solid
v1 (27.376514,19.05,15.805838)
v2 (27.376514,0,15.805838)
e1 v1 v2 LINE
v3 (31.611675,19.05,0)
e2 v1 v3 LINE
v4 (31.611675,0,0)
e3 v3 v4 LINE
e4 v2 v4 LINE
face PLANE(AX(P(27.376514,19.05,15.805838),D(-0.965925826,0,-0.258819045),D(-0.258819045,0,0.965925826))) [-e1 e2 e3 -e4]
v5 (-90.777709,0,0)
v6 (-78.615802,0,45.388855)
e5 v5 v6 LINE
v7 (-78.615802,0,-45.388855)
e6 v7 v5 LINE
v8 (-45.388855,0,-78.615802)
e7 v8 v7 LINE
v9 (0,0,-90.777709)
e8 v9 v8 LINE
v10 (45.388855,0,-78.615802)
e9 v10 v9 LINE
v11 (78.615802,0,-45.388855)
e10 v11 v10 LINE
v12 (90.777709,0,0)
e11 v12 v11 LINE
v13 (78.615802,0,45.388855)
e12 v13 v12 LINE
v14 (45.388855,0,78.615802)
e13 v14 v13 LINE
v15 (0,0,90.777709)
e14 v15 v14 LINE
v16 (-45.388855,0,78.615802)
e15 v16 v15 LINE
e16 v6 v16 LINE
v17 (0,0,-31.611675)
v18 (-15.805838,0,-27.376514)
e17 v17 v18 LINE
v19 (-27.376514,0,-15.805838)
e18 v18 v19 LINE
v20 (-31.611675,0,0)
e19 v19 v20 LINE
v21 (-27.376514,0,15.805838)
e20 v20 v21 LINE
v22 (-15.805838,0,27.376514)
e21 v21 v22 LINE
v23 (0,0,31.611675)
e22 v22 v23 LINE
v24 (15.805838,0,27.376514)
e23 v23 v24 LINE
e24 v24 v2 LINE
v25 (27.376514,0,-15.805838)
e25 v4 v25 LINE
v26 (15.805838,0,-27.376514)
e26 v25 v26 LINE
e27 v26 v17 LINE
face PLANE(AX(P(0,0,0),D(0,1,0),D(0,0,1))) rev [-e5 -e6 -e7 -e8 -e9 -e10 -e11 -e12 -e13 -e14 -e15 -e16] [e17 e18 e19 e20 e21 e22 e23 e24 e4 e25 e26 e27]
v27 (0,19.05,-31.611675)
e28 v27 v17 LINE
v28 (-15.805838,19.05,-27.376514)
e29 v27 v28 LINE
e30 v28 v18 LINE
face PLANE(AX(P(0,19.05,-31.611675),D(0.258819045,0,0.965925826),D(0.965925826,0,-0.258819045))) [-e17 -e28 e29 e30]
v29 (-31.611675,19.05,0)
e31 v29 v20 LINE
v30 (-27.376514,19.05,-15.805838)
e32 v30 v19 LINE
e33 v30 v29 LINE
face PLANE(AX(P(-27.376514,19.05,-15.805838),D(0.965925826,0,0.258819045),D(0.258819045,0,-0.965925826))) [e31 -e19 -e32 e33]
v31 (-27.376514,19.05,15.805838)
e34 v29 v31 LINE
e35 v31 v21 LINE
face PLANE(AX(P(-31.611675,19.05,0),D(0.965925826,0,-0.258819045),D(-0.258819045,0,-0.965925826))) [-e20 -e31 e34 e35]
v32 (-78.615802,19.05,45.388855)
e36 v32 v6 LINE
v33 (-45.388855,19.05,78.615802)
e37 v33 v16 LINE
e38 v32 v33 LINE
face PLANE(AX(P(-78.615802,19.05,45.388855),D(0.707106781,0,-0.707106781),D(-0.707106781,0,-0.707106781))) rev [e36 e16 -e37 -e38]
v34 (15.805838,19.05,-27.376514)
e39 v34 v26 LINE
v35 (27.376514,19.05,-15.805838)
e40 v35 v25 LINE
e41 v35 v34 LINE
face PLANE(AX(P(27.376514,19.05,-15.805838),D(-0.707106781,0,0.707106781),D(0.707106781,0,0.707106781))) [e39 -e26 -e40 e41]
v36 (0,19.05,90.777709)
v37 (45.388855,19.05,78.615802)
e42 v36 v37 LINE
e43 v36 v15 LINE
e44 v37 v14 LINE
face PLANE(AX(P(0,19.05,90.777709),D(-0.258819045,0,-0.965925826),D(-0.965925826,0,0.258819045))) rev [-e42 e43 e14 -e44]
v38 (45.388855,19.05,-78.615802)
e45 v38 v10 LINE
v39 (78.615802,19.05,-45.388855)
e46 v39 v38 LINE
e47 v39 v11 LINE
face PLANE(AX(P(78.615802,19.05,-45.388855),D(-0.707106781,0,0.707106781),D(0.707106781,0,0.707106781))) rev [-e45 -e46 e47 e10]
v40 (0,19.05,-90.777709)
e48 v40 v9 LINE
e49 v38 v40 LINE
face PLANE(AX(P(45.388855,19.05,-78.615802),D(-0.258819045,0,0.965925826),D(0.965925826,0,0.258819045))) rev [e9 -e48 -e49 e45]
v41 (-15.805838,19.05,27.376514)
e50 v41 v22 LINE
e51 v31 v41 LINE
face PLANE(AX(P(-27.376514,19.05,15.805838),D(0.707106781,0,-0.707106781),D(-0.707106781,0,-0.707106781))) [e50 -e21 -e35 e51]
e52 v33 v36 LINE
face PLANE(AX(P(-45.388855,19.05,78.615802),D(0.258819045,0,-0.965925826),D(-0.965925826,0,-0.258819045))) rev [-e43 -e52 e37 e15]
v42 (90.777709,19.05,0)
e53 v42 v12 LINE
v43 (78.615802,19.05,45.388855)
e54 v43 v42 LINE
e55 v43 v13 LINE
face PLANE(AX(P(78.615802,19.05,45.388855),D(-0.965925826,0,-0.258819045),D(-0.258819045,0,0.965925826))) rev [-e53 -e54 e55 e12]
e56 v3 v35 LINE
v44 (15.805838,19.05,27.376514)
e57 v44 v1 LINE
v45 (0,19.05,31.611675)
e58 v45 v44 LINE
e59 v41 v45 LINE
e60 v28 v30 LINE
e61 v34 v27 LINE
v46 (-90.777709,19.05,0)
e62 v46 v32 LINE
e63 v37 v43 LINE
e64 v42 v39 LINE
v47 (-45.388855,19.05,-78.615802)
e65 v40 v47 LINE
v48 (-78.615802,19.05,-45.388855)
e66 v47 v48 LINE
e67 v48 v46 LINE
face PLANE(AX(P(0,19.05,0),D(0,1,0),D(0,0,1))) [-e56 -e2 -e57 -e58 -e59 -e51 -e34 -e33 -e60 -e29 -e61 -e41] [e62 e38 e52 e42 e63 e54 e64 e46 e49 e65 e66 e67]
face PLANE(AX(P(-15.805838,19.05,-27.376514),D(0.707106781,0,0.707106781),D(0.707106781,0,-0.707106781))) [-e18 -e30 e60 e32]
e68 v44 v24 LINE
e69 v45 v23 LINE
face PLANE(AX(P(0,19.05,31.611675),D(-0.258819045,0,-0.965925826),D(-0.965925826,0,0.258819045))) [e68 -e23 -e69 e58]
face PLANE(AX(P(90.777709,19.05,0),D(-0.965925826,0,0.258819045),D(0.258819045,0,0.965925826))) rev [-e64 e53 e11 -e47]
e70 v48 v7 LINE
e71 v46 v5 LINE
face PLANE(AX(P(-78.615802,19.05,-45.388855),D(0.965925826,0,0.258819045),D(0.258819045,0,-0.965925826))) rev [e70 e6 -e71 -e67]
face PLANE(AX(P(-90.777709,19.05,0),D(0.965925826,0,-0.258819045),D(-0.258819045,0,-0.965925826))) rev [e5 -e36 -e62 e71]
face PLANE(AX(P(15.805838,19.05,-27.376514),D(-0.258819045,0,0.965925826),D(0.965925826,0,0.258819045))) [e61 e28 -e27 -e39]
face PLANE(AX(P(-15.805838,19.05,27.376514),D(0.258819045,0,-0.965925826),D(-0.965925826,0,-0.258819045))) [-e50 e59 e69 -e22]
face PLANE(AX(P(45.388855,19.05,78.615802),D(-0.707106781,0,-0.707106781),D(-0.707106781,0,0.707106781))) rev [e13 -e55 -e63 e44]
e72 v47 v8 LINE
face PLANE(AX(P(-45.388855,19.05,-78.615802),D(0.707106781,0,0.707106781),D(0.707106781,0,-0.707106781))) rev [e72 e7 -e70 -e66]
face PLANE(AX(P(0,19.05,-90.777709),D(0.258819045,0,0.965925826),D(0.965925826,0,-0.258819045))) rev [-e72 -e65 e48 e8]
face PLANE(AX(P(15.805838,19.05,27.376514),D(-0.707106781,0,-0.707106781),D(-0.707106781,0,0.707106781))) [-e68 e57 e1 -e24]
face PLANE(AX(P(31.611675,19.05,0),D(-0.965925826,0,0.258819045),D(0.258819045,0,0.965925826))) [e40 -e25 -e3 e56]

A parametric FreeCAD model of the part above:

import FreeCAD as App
import Part
import Sketcher
from FreeCAD import Vector
Q = App.Units.Quantity

doc = App.newDocument("Part")
body = doc.addObject("PartDesign::Body", "Body")

sketch1 = body.newObject("Sketcher::SketchObject", "Sketch")
sketch1.AttachmentSupport = (doc.getObject("XZ_Plane"), [""])
sketch1.MapMode = "FlatFace"
sketch1.addGeometry([
    Part.LineSegment(Vector(91, 0, 0), Vector(79, -45, 0)),
    Part.LineSegment(Vector(79, -45, 0), Vector(45, -79, 0)),
    Part.LineSegment(Vector(45, -79, 0), Vector(0, -91, 0)),
    Part.LineSegment(Vector(0, -91, 0), Vector(-45, -79, 0)),
    Part.LineSegment(Vector(-45, -79, 0), Vector(-79, -45, 0)),
    Part.LineSegment(Vector(-79, -45, 0), Vector(-91, 0, 0)),
    Part.LineSegment(Vector(-91, 0, 0), Vector(-79, 45, 0)),
    Part.LineSegment(Vector(-79, 45, 0), Vector(-45, 79, 0)),
    Part.LineSegment(Vector(-45, 79, 0), Vector(0, 91, 0)),
    Part.LineSegment(Vector(0, 91, 0), Vector(45, 79, 0)),
    Part.LineSegment(Vector(45, 79, 0), Vector(79, 45, 0)),
    Part.LineSegment(Vector(79, 45, 0), Vector(91, 0, 0)),
    Part.LineSegment(Vector(27, -16, 0), Vector(32, 0, 0)),
    Part.LineSegment(Vector(32, 0, 0), Vector(27, 16, 0)),
    Part.LineSegment(Vector(27, 16, 0), Vector(16, 27, 0)),
    Part.LineSegment(Vector(16, 27, 0), Vector(0, 32, 0)),
    Part.LineSegment(Vector(0, 32, 0), Vector(-16, 27, 0)),
    Part.LineSegment(Vector(-16, 27, 0), Vector(-27, 16, 0)),
    Part.LineSegment(Vector(-27, 16, 0), Vector(-32, 0, 0)),
    Part.LineSegment(Vector(-32, 0, 0), Vector(-27, -16, 0)),
    Part.LineSegment(Vector(-27, -16, 0), Vector(-16, -27, 0)),
    Part.LineSegment(Vector(-16, -27, 0), Vector(0, -32, 0)),
    Part.LineSegment(Vector(0, -32, 0), Vector(16, -27, 0)),
    Part.LineSegment(Vector(16, -27, 0), Vector(27, -16, 0)),
], False)
sketch1.addConstraint([
    Sketcher.Constraint("Coincident", 0, 2, 1, 1),
    Sketcher.Constraint("Coincident", 1, 2, 2, 1),
    Sketcher.Constraint("Coincident", 2, 2, 3, 1),
    Sketcher.Constraint("Coincident", 3, 2, 4, 1),
    Sketcher.Constraint("Coincident", 4, 2, 5, 1),
    Sketcher.Constraint("Coincident", 5, 2, 6, 1),
    Sketcher.Constraint("Coincident", 6, 2, 7, 1),
    Sketcher.Constraint("Coincident", 7, 2, 8, 1),
    Sketcher.Constraint("Coincident", 8, 2, 9, 1),
    Sketcher.Constraint("Coincident", 9, 2, 10, 1),
    Sketcher.Constraint("Coincident", 10, 2, 11, 1),
    Sketcher.Constraint("Coincident", 11, 2, 0, 1),
    Sketcher.Constraint("Coincident", 12, 2, 13, 1),
    Sketcher.Constraint("Coincident", 13, 2, 14, 1),
    Sketcher.Constraint("Coincident", 14, 2, 15, 1),
    Sketcher.Constraint("Coincident", 15, 2, 16, 1),
    Sketcher.Constraint("Coincident", 16, 2, 17, 1),
    Sketcher.Constraint("Coincident", 17, 2, 18, 1),
    Sketcher.Constraint("Coincident", 18, 2, 19, 1),
    Sketcher.Constraint("Coincident", 19, 2, 20, 1),
    Sketcher.Constraint("Coincident", 20, 2, 21, 1),
    Sketcher.Constraint("Coincident", 21, 2, 22, 1),
    Sketcher.Constraint("Coincident", 22, 2, 23, 1),
    Sketcher.Constraint("Coincident", 23, 2, 12, 1),
    Sketcher.Constraint("Symmetric", 0, 2, 6, 2, -1, 1),
    Sketcher.Constraint("Symmetric", 1, 2, 7, 2, -1, 1),
    Sketcher.Constraint("Symmetric", 2, 2, 8, 2, -1, 1),
    Sketcher.Constraint("Symmetric", 3, 2, 9, 2, -1, 1),
    Sketcher.Constraint("Symmetric", 4, 2, 10, 2, -1, 1),
    Sketcher.Constraint("Symmetric", 5, 2, 11, 2, -1, 1),
    Sketcher.Constraint("Symmetric", 12, 2, 18, 2, -1, 1),
    Sketcher.Constraint("Symmetric", 13, 2, 19, 2, -1, 1),
    Sketcher.Constraint("Symmetric", 14, 2, 20, 2, -1, 1),
    Sketcher.Constraint("Symmetric", 15, 2, 21, 2, -1, 1),
    Sketcher.Constraint("Symmetric", 16, 2, 22, 2, -1, 1),
    Sketcher.Constraint("Symmetric", 17, 2, 23, 2, -1, 1),
    Sketcher.Constraint("Symmetric", 1, 2, 3, 2, -2),
    Sketcher.Constraint("Symmetric", 0, 2, 4, 2, -2),
    Sketcher.Constraint("Symmetric", 14, 2, 16, 2, -2),
    Sketcher.Constraint("Symmetric", 13, 2, 17, 2, -2),
    Sketcher.Constraint("PointOnObject", 2, 2, -2),
    Sketcher.Constraint("PointOnObject", 5, 2, -1),
    Sketcher.Constraint("PointOnObject", 12, 2, -1),
    Sketcher.Constraint("PointOnObject", 15, 2, -2),
    Sketcher.Constraint("Perpendicular", 0, 3),
    Sketcher.Constraint("Perpendicular", 1, 4),
    Sketcher.Constraint("Perpendicular", 9, 12),
    Sketcher.Constraint("Parallel", 10, 14),
    Sketcher.Constraint("Perpendicular", 12, 15),
    Sketcher.Constraint("Equal", 0, 1),
    Sketcher.Constraint("Equal", 1, 2),
    Sketcher.Constraint("Equal", 13, 14),
    Sketcher.Constraint("Equal", 14, 15),
    Sketcher.Constraint("Angle", 0, Q("-105 deg")),
    Sketcher.Constraint("Distance", 0, Q("1.85 in")),
    Sketcher.Constraint("DistanceX", 12, 2, 1, 2, Q("13.777179 mm")),
])
pad1 = body.newObject("PartDesign::Pad", "Pad")
pad1.Profile = sketch1
pad1.Length = Q("0.75 in")
pad1.Reversed = True

doc.recompute()
